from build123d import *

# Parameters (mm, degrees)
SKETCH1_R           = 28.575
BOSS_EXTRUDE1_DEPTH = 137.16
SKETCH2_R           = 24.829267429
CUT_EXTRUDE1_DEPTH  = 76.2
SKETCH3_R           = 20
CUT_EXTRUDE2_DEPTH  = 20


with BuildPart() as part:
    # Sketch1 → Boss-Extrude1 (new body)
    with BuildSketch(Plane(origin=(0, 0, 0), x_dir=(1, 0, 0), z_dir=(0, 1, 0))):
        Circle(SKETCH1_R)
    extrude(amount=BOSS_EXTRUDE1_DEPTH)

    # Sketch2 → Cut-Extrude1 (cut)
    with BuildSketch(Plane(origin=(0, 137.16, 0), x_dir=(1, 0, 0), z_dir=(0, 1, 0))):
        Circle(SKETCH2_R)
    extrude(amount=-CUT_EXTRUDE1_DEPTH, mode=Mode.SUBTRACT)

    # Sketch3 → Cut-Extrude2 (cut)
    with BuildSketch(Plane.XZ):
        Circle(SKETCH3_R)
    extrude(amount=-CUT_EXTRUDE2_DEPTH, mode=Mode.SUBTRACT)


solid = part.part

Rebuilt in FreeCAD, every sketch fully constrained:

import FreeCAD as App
import Part
import Sketcher
from FreeCAD import Vector
Q = App.Units.Quantity

doc = App.newDocument("Part")
body = doc.addObject("PartDesign::Body", "Body")

sketch1 = doc.addObject("Sketcher::SketchObject", "Sketch")
body.addObject(sketch1)
sketch1.AttachmentSupport = (doc.XZ_Plane, [""])
sketch1.MapMode = "FlatFace"
sketch1.addGeometry(Part.Circle(Vector(0, 0, 0), Vector(0, 0, 1), 29), False)
sketch1.addConstraint([
    Sketcher.Constraint("Coincident", 0, 3, -1, 1),
    Sketcher.Constraint("Diameter", 0, Q("2.25 in")),
])
pad1 = doc.addObject("PartDesign::Pad", "Pad")
body.addObject(pad1)
pad1.Profile = sketch1
pad1.Length = Q("5.4 in")
pad1.Reversed = True

sketch2 = doc.addObject("Sketcher::SketchObject", "Sketch001")
body.addObject(sketch2)
sketch2.AttachmentSupport = (doc.XZ_Plane, [""])
sketch2.MapMode = "FlatFace"
sketch2.AttachmentOffset = App.Placement(Vector(0, 0, -5.4 * 25.4), App.Rotation())
sketch2.addGeometry(Part.Circle(Vector(0, 0, 0), Vector(0, 0, 1), 25), False)
sketch2.addConstraint([
    Sketcher.Constraint("Coincident", 0, 3, -1, 1),
    Sketcher.Constraint("Diameter", 0, Q("49.658535 mm")),
])
pocket1 = doc.addObject("PartDesign::Pocket", "Pocket")
body.addObject(pocket1)
pocket1.Profile = sketch2
pocket1.Length = Q("3 in")
pocket1.Reversed = True

sketch3 = doc.addObject("Sketcher::SketchObject", "Sketch002")
body.addObject(sketch3)
sketch3.AttachmentSupport = (doc.XZ_Plane, [""])
sketch3.MapMode = "FlatFace"
sketch3.addGeometry(Part.Circle(Vector(0, 0, 0), Vector(0, 0, 1), 20), False)
sketch3.addConstraint([
    Sketcher.Constraint("Coincident", 0, 3, -1, 1),
    Sketcher.Constraint("Diameter", 0, Q("40 mm")),
])
pocket2 = doc.addObject("PartDesign::Pocket", "Pocket001")
body.addObject(pocket2)
pocket2.Profile = sketch3
pocket2.Length = 20

doc.recompute()
